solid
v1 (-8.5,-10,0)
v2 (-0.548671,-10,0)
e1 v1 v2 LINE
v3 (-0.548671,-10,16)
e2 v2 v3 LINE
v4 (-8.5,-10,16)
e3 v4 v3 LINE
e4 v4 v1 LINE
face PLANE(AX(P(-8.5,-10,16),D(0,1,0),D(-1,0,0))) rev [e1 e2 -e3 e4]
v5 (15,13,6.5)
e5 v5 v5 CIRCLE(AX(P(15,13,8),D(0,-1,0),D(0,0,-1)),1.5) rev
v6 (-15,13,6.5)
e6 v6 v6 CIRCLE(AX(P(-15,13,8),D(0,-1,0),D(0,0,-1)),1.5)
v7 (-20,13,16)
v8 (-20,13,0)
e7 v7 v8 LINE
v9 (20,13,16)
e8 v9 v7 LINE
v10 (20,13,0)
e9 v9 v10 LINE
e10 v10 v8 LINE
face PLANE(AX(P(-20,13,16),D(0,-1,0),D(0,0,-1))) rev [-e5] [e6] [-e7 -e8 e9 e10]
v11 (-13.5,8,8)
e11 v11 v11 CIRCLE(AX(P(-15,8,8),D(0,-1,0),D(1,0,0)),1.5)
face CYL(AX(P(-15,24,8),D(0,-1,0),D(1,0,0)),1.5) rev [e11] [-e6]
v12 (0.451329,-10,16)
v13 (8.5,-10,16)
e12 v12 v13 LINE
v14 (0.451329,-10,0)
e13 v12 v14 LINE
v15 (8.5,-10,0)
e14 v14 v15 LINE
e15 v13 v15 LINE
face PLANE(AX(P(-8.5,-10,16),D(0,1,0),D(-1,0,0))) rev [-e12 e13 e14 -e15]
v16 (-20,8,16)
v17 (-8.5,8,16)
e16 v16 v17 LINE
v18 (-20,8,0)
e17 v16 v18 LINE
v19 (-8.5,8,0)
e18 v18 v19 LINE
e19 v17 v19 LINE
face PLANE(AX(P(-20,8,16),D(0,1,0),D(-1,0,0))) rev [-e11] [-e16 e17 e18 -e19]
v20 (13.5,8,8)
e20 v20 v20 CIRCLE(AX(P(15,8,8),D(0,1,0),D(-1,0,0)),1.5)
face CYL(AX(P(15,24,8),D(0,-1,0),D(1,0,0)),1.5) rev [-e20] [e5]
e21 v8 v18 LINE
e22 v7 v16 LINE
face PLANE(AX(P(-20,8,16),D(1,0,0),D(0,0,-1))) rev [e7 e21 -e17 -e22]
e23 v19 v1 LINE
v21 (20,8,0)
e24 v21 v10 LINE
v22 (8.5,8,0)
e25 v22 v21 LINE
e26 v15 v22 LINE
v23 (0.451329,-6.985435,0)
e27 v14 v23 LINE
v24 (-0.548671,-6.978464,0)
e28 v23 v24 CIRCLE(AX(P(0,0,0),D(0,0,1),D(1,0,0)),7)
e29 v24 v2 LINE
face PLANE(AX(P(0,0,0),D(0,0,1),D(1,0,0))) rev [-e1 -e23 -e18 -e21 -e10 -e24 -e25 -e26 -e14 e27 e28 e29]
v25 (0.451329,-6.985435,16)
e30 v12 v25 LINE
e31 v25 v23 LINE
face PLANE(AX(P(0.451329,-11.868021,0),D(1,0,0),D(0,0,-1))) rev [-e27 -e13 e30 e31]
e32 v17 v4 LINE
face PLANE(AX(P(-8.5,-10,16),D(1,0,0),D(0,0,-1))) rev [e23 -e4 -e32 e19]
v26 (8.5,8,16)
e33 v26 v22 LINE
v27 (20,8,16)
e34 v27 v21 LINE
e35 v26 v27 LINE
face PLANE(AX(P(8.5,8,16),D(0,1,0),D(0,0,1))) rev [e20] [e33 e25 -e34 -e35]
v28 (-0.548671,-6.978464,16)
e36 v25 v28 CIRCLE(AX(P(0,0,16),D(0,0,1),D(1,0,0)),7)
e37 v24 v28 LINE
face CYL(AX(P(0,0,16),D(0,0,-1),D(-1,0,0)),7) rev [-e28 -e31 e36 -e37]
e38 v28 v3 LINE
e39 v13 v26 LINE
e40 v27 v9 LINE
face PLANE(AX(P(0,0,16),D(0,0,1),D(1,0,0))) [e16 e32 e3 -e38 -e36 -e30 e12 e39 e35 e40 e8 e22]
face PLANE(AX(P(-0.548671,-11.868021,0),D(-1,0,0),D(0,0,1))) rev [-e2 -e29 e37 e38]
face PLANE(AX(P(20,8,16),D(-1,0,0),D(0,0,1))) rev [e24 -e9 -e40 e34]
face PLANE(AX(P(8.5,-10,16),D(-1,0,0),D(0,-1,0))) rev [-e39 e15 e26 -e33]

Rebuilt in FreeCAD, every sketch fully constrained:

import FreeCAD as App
import Part
import Sketcher

V = App.Vector


def add_polygon(sketch, points):
    """Adds a closed chain of lines whose ends are joined by coincident constraints."""
    first, n = sketch.GeometryCount, len(points)
    for a, b in zip(points, points[1:] + points[:1]):
        sketch.addGeometry(Part.LineSegment(App.Vector(*a, 0), App.Vector(*b, 0)), False)
    for i in range(n):
        sketch.addConstraint(Sketcher.Constraint("Coincident", first + i, 2, first + (i + 1) % n, 1))

doc = App.newDocument("Part")
body = doc.addObject("PartDesign::Body", "Body")

sketch1 = body.newObject("Sketcher::SketchObject", "Sketch")
sketch1.AttachmentSupport = (doc.getObject("XY_Plane"), [""])
sketch1.MapMode = "FlatFace"
add_polygon(sketch1, [(-20, 8), (-8, 8), (-8, -10), (8, -10), (8, 8), (20, 8), (20, 13), (-20, 13)])
sketch1.addGeometry(Part.Circle(V(0, 0, 0), V(0, 0, 1), 7), False)
sketch1.addConstraint([
    Sketcher.Constraint("Horizontal", 0),
    Sketcher.Constraint("Vertical", 1),
    Sketcher.Constraint("Horizontal", 2),
    Sketcher.Constraint("Vertical", 3),
    Sketcher.Constraint("Horizontal", 4),
    Sketcher.Constraint("Vertical", 5),
    Sketcher.Constraint("Horizontal", 6),
    Sketcher.Constraint("Vertical", 7),
    Sketcher.Constraint("Coincident", 8, 3, -1, 1),
    Sketcher.Constraint("Symmetric", 0, 2, 3, 2, -2),
    Sketcher.Constraint("Equal", 0, 4),
    Sketcher.Constraint("Diameter", 8, 14.0),
    Sketcher.Constraint("DistanceX", 2, 1, 2, 2, 17.0),
    Sketcher.Constraint("DistanceX", 6, 2, 6, 1, 40.0),
    Sketcher.Constraint("DistanceY", 1, 2, 1, 1, 18.0),
    Sketcher.Constraint("DistanceY", 5, 1, 5, 2, 5.0),
    Sketcher.Constraint("DistanceY", -1, 1, 0, 2, 8.0),
])
pad1 = body.newObject("PartDesign::Pad", "Pad")
pad1.Profile = sketch1
pad1.Length = 16

sketch2 = body.newObject("Sketcher::SketchObject", "Sketch001")
sketch2.AttachmentSupport = (doc.getObject("XY_Plane"), [""])
sketch2.MapMode = "FlatFace"
sketch2.AttachmentOffset = App.Placement(V(0, 0, 16), App.Rotation())
add_polygon(sketch2, [(-0.5, -6.2), (-0.5, -11.9), (0.5, -11.9), (0.5, -6.2)])
sketch2.addConstraint([
    Sketcher.Constraint("Vertical", 0),
    Sketcher.Constraint("Horizontal", 1),
    Sketcher.Constraint("Vertical", 2),
    Sketcher.Constraint("Horizontal", 3),
    Sketcher.Constraint("DistanceX", 1, 1, 1, 2, 1.0),
    Sketcher.Constraint("DistanceY", 0, 2, 0, 1, 5.647679),
    Sketcher.Constraint("DistanceX", 0, 2, -1, 1, 0.548671),
    Sketcher.Constraint("DistanceY", 0, 2, -1, 1, 11.868021),
])
pocket1 = body.newObject("PartDesign::Pocket", "Pocket")
pocket1.Profile = sketch2
pocket1.Type = "ThroughAll"

sketch3 = body.newObject("Sketcher::SketchObject", "Sketch002")
sketch3.AttachmentSupport = (doc.getObject("XZ_Plane"), [""])
sketch3.MapMode = "FlatFace"
sketch3.AttachmentOffset = App.Placement(V(0, 0, -8), App.Rotation())
sketch3.addGeometry(Part.Circle(V(-15, 8, 0), V(0, 0, 1), 1.5), False)
sketch3.addConstraint([
    Sketcher.Constraint("Diameter", 0, 3.0),
    Sketcher.Constraint("DistanceX", 0, 3, -1, 1, 15.0),
    Sketcher.Constraint("DistanceY", -1, 1, 0, 3, 8.0),
])
pocket2 = body.newObject("PartDesign::Pocket", "Pocket001")
pocket2.Profile = sketch3
pocket2.Length = 16
doc.recompute()

mirrored = body.newObject("PartDesign::Mirrored", "Mirrored")
mirrored.Originals = [pocket2]
mirrored.MirrorPlane = (doc.getObject("YZ_Plane"), [""])
body.Tip = mirrored

doc.recompute()
